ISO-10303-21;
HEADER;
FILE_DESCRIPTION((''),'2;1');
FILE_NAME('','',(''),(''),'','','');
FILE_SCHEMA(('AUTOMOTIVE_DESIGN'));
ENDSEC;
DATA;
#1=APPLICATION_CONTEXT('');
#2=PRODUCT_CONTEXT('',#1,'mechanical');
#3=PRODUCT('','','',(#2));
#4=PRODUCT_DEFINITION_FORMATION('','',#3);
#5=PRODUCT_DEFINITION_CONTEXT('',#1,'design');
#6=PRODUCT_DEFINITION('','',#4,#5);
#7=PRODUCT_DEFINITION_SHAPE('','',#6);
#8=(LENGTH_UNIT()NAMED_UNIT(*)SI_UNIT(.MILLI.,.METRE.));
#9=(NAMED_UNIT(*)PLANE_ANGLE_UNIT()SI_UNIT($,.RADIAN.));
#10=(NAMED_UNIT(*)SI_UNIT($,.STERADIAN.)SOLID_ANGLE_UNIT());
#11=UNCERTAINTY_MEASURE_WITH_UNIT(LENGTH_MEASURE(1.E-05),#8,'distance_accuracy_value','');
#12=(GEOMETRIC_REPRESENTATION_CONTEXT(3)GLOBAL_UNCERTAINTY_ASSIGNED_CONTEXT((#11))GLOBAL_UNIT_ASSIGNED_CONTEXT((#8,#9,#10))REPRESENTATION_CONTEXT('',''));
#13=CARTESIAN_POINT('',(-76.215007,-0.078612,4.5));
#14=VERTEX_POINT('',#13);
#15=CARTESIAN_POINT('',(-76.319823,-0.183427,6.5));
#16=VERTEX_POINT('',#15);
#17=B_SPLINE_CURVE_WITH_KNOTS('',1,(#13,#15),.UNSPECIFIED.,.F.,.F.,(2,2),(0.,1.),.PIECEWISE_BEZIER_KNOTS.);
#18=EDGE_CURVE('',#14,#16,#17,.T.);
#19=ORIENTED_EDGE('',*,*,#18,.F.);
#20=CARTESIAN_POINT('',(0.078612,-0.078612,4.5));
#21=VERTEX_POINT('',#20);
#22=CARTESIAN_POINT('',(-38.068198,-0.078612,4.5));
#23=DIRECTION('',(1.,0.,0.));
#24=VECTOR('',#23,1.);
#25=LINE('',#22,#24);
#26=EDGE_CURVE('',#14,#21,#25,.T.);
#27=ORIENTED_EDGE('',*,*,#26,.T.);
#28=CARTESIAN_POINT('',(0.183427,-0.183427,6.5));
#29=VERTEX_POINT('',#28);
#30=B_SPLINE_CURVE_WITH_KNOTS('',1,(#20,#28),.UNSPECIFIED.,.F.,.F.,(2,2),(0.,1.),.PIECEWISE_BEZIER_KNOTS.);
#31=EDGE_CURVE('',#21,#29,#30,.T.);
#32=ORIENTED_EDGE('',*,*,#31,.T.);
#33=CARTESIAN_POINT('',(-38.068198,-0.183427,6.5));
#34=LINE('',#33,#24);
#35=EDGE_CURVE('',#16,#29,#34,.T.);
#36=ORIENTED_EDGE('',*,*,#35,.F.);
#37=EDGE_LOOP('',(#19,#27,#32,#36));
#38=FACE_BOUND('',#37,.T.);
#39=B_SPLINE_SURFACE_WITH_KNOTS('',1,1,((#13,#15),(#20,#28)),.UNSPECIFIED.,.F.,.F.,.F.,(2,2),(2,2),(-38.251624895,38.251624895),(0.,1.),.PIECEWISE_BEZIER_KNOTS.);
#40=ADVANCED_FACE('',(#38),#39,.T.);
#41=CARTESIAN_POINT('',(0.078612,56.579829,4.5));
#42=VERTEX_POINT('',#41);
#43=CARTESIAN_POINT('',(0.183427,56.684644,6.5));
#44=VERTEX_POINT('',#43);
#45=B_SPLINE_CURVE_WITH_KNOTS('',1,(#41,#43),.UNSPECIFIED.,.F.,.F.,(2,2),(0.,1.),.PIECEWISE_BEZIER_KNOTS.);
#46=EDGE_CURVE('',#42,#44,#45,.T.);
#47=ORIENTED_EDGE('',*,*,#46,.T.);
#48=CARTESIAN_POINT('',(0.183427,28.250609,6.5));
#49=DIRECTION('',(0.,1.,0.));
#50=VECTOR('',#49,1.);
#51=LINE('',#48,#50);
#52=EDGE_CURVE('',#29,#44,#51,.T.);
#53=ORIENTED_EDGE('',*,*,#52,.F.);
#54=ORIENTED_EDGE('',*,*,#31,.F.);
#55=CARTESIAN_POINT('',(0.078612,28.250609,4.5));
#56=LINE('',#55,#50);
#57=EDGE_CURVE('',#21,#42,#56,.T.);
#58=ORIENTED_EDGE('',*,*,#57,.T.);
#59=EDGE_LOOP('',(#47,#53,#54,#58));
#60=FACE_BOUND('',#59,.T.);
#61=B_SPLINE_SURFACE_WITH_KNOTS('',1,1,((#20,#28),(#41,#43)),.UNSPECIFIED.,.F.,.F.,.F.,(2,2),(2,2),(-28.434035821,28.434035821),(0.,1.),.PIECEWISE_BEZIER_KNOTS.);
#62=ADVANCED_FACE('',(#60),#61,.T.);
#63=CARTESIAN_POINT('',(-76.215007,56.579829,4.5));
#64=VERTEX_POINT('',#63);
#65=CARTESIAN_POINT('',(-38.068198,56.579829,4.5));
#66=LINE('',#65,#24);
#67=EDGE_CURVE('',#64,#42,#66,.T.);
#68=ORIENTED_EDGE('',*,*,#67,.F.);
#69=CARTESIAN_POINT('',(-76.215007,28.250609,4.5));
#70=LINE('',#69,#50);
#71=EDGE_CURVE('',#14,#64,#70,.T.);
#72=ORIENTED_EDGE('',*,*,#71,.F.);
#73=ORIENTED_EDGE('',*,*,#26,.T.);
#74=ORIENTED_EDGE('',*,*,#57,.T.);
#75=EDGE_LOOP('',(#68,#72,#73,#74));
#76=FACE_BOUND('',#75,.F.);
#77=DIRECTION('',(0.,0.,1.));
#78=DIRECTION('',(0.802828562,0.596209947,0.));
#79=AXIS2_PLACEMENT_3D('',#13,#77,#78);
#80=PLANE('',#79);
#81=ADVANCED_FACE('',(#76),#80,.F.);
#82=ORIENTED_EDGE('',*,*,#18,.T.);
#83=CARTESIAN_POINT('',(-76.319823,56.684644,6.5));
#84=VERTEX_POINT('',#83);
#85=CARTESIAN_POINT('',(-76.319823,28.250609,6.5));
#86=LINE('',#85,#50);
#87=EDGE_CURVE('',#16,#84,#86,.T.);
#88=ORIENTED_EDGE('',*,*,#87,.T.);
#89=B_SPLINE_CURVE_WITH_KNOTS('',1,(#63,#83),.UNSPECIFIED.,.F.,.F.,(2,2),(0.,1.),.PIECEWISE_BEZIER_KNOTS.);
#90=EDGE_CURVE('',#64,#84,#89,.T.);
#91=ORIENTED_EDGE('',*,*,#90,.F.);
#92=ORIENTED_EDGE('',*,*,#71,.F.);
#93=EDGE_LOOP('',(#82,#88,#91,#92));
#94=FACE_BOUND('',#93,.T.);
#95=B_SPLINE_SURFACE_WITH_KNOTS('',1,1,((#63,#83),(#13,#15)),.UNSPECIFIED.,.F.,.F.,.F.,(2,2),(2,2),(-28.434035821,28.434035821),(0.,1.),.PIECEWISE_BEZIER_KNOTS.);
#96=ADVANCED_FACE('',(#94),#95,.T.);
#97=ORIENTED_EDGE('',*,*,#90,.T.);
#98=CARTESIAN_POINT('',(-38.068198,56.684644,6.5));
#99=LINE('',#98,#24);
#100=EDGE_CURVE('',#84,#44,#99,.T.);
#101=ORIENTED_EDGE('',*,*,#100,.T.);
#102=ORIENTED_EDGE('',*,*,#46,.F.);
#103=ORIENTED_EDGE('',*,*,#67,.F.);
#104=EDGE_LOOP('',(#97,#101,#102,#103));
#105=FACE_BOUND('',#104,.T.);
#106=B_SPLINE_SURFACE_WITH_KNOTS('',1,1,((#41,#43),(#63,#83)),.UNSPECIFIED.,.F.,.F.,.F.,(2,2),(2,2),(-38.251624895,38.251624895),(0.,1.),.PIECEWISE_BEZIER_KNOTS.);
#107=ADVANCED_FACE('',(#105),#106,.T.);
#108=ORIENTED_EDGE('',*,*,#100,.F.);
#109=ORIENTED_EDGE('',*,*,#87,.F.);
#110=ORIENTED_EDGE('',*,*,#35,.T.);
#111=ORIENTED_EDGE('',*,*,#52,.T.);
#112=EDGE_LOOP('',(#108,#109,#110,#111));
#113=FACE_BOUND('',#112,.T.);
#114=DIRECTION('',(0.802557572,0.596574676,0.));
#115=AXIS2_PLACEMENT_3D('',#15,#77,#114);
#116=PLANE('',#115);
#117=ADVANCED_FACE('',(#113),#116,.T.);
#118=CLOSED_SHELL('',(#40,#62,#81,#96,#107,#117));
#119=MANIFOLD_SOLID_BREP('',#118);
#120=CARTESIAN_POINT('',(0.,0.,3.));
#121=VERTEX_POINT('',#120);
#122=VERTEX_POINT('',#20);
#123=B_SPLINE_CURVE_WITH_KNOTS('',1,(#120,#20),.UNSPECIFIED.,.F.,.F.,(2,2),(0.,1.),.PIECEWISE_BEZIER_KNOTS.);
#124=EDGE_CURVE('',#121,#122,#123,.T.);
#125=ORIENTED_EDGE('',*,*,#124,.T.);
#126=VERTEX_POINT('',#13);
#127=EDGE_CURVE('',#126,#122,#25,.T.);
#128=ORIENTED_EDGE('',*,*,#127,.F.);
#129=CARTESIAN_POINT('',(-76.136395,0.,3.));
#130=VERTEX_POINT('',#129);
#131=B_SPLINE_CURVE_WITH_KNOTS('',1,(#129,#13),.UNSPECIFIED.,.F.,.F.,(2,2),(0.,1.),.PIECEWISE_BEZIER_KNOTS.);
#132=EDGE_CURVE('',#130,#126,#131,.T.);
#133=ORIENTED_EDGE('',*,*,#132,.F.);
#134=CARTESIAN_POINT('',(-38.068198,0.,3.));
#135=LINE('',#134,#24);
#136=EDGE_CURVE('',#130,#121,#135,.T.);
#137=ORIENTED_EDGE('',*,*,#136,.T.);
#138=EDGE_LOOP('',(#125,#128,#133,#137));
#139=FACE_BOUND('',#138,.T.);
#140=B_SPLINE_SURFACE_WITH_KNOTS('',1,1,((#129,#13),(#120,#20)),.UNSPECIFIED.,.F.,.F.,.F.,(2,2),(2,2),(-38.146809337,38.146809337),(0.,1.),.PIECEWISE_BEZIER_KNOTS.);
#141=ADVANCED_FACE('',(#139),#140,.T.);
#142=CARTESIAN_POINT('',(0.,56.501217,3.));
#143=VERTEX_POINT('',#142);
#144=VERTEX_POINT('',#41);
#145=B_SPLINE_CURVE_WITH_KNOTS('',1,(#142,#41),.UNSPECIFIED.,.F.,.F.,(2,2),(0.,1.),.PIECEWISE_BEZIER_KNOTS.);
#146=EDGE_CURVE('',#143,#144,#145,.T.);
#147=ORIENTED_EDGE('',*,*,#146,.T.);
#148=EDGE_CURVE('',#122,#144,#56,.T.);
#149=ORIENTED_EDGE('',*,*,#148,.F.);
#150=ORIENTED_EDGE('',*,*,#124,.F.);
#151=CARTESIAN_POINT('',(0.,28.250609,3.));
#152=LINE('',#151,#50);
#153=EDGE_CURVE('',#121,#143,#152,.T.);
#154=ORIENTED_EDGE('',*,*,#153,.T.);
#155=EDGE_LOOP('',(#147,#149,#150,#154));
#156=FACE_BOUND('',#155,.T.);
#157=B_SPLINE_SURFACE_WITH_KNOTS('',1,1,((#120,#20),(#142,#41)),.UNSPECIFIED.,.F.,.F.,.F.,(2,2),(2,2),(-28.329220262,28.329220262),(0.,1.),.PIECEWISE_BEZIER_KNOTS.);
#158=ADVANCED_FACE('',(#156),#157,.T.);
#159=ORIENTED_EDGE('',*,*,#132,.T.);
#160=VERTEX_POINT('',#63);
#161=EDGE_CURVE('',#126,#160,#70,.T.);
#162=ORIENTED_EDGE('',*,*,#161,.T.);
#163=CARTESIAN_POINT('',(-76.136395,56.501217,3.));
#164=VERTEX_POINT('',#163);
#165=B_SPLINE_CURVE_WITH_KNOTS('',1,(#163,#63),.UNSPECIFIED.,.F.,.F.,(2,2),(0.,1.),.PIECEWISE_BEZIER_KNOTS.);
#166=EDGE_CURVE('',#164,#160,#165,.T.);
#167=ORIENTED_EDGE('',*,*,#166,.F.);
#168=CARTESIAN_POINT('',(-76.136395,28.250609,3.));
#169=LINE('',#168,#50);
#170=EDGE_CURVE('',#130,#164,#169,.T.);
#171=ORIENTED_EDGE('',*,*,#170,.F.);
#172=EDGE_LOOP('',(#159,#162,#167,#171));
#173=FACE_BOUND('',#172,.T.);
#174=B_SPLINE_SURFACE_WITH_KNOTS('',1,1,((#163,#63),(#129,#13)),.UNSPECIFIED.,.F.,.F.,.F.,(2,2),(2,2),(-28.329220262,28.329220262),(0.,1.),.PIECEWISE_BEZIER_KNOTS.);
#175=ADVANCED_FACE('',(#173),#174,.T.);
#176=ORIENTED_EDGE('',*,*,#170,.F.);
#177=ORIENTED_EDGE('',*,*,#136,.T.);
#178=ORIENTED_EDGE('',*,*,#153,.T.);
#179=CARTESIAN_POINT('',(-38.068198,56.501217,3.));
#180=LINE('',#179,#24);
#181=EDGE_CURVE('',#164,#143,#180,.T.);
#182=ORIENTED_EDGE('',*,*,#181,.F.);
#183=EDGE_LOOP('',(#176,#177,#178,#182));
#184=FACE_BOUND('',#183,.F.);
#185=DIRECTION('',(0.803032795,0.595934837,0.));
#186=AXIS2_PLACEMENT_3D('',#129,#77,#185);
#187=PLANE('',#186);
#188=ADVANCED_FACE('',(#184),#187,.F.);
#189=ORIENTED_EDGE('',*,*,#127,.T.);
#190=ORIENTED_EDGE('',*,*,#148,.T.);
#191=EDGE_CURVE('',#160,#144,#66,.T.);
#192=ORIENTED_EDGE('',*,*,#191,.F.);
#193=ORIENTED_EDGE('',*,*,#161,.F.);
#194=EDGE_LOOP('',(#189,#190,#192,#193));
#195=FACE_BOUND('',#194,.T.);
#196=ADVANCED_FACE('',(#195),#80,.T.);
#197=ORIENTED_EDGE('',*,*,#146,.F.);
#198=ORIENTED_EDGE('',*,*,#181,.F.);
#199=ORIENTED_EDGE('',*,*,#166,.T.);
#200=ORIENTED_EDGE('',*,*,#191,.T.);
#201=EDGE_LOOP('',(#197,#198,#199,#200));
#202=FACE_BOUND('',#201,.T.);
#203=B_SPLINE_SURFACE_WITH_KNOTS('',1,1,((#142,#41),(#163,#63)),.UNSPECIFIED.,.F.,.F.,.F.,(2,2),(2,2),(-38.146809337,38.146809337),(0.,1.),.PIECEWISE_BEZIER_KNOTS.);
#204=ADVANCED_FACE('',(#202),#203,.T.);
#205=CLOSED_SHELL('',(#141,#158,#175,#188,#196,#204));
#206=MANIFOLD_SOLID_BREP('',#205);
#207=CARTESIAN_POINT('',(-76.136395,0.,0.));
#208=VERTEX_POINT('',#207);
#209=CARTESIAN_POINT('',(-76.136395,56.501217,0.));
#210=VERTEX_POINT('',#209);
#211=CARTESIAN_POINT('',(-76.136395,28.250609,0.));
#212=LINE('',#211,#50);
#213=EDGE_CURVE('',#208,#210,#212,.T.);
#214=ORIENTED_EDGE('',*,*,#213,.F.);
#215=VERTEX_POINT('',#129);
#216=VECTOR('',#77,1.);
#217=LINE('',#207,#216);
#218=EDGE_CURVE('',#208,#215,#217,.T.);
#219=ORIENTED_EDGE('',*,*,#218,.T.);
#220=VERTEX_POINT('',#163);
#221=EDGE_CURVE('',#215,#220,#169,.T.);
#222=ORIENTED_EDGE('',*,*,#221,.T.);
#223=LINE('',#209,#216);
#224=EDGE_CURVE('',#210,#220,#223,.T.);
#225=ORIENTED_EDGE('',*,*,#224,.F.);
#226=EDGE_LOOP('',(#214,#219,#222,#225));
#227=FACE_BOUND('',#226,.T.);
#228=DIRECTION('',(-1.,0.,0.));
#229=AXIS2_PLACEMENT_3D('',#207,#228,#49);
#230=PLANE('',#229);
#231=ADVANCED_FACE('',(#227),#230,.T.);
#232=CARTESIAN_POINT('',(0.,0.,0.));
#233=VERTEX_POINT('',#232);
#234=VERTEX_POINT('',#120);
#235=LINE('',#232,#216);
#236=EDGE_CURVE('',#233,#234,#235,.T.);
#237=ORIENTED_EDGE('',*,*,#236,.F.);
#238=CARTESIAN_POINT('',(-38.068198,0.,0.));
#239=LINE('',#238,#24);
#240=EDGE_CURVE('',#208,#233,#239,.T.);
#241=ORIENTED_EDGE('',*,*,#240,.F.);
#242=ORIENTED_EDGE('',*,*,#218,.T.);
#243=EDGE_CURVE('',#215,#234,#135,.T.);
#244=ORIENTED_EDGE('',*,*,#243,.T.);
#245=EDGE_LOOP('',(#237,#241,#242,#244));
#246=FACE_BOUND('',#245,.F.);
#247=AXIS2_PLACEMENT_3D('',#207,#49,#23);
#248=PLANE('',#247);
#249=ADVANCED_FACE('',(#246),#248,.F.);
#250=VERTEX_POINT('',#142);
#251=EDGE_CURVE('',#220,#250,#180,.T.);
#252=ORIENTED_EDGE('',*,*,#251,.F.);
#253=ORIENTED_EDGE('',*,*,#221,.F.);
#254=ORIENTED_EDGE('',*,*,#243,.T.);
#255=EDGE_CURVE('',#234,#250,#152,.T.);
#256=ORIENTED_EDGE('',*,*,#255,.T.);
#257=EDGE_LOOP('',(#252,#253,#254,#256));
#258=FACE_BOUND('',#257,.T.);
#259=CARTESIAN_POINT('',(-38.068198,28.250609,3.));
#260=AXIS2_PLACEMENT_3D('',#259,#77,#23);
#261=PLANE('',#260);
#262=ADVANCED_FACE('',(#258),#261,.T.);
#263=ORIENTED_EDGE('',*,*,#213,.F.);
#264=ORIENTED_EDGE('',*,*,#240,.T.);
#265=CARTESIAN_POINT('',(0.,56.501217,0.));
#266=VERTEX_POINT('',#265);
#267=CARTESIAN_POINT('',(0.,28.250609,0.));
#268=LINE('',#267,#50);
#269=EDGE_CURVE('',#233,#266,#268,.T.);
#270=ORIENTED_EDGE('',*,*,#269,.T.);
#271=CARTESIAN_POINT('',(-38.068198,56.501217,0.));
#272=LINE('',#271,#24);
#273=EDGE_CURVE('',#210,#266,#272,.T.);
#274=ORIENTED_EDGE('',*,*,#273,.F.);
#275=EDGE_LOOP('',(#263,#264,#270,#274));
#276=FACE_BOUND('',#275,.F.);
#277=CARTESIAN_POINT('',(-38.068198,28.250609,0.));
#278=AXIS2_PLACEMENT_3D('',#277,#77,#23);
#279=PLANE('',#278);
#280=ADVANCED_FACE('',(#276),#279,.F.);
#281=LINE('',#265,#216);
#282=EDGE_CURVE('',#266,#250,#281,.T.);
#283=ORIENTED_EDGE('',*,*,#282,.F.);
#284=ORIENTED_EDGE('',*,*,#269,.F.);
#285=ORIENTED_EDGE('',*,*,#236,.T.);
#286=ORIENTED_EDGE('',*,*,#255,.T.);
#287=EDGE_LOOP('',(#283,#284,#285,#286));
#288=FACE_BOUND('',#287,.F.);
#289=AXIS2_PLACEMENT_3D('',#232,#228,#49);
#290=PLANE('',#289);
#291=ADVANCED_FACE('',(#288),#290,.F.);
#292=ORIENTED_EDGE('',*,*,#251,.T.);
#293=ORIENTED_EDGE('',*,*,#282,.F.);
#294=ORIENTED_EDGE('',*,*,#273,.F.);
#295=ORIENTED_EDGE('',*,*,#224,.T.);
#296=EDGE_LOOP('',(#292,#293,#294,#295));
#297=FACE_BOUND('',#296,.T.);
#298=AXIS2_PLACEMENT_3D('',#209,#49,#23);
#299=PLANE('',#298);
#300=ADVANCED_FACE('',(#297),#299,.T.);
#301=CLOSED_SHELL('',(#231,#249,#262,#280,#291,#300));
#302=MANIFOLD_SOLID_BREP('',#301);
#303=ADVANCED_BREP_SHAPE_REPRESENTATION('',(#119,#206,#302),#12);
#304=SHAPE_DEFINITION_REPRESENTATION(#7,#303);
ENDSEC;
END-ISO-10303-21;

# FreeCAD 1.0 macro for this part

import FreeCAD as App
import Part
import Sketcher
Q = App.Units.Quantity

doc = App.newDocument("Part")
body = doc.addObject("PartDesign::Body", "Body")

# Sketch on XY plane
sketch1 = body.newObject("Sketcher::SketchObject", "Sketch")
sketch1.AttachmentSupport = (doc.getObject("XY_Plane"), [""])
sketch1.MapMode = "FlatFace"
sketch1.addGeometry(Part.LineSegment(App.Vector(-76, 57, 0), App.Vector(-76, 0, 0)), False)
sketch1.addGeometry(Part.LineSegment(App.Vector(-76, 0, 0), App.Vector(0, 0, 0)), False)
sketch1.addGeometry(Part.LineSegment(App.Vector(0, 0, 0), App.Vector(0, 57, 0)), False)
sketch1.addGeometry(Part.LineSegment(App.Vector(0, 57, 0), App.Vector(-76, 57, 0)), False)
sketch1.addConstraint(Sketcher.Constraint("Coincident", 0, 2, 1, 1))
sketch1.addConstraint(Sketcher.Constraint("Coincident", 1, 2, 2, 1))
sketch1.addConstraint(Sketcher.Constraint("Coincident", 2, 2, 3, 1))
sketch1.addConstraint(Sketcher.Constraint("Coincident", 3, 2, 0, 1))
sketch1.addConstraint(Sketcher.Constraint("Vertical", 0))
sketch1.addConstraint(Sketcher.Constraint("Horizontal", 1))
sketch1.addConstraint(Sketcher.Constraint("Vertical", 2))
sketch1.addConstraint(Sketcher.Constraint("Horizontal", 3))
sketch1.addConstraint(Sketcher.Constraint("Coincident", 1, 2, -1, 1))
sketch1.addConstraint(Sketcher.Constraint("DistanceX", 1, 1, 1, 2, Q("76.136395 mm")))
sketch1.addConstraint(Sketcher.Constraint("DistanceY", 0, 2, 0, 1, Q("56.501217 mm")))
pad1 = body.newObject("PartDesign::Pad", "Pad")
pad1.Profile = sketch1
pad1.Length = 3
body2 = doc.addObject("PartDesign::Body", "Body001")

# Sketch on XY plane
sketch2 = body2.newObject("Sketcher::SketchObject", "Sketch001")
sketch2.AttachmentSupport = (doc.getObject("XY_Plane001"), [""])
sketch2.MapMode = "FlatFace"
sketch2.AttachmentOffset = App.Placement(App.Vector(0, 0, 3), App.Rotation())
sketch2.addGeometry(Part.LineSegment(App.Vector(-76, 57, 0), App.Vector(-76, 0, 0)), False)
sketch2.addGeometry(Part.LineSegment(App.Vector(-76, 0, 0), App.Vector(0, 0, 0)), False)
sketch2.addGeometry(Part.LineSegment(App.Vector(0, 0, 0), App.Vector(0, 57, 0)), False)
sketch2.addGeometry(Part.LineSegment(App.Vector(0, 57, 0), App.Vector(-76, 57, 0)), False)
sketch2.addConstraint(Sketcher.Constraint("Coincident", 0, 2, 1, 1))
sketch2.addConstraint(Sketcher.Constraint("Coincident", 1, 2, 2, 1))
sketch2.addConstraint(Sketcher.Constraint("Coincident", 2, 2, 3, 1))
sketch2.addConstraint(Sketcher.Constraint("Coincident", 3, 2, 0, 1))
sketch2.addConstraint(Sketcher.Constraint("Vertical", 0))
sketch2.addConstraint(Sketcher.Constraint("Horizontal", 1))
sketch2.addConstraint(Sketcher.Constraint("Vertical", 2))
sketch2.addConstraint(Sketcher.Constraint("Horizontal", 3))
sketch2.addConstraint(Sketcher.Constraint("Coincident", 1, 2, -1, 1))
sketch2.addConstraint(Sketcher.Constraint("DistanceX", 1, 1, 1, 2, Q("76.136395 mm")))
sketch2.addConstraint(Sketcher.Constraint("DistanceY", 0, 2, 0, 1, Q("56.501217 mm")))
pad2 = body2.newObject("PartDesign::Pad", "Pad001")
pad2.Profile = sketch2
pad2.Length = 1.5
pad2.TaperAngle = 3
body3 = doc.addObject("PartDesign::Body", "Body002")

# Sketch on XY plane
sketch3 = body3.newObject("Sketcher::SketchObject", "Sketch002")
sketch3.AttachmentSupport = (doc.getObject("XY_Plane002"), [""])
sketch3.MapMode = "FlatFace"
sketch3.AttachmentOffset = App.Placement(App.Vector(0, 0, 4.5), App.Rotation())
sketch3.addGeometry(Part.LineSegment(App.Vector(-76, 57, 0), App.Vector(-76, 0, 0)), False)
sketch3.addGeometry(Part.LineSegment(App.Vector(-76, 0, 0), App.Vector(0, 0, 0)), False)
sketch3.addGeometry(Part.LineSegment(App.Vector(0, 0, 0), App.Vector(0, 57, 0)), False)
sketch3.addGeometry(Part.LineSegment(App.Vector(0, 57, 0), App.Vector(-76, 57, 0)), False)
sketch3.addConstraint(Sketcher.Constraint("Coincident", 0, 2, 1, 1))
sketch3.addConstraint(Sketcher.Constraint("Coincident", 1, 2, 2, 1))
sketch3.addConstraint(Sketcher.Constraint("Coincident", 2, 2, 3, 1))
sketch3.addConstraint(Sketcher.Constraint("Coincident", 3, 2, 0, 1))
sketch3.addConstraint(Sketcher.Constraint("Vertical", 0))
sketch3.addConstraint(Sketcher.Constraint("Horizontal", 1))
sketch3.addConstraint(Sketcher.Constraint("Vertical", 2))
sketch3.addConstraint(Sketcher.Constraint("Horizontal", 3))
sketch3.addConstraint(Sketcher.Constraint("DistanceX", 1, 1, 1, 2, Q("76.293619 mm")))
sketch3.addConstraint(Sketcher.Constraint("DistanceY", 0, 2, 0, 1, Q("56.658441 mm")))
sketch3.addConstraint(Sketcher.Constraint("DistanceY", 0, 2, -1, 1, Q("0.078612 mm")))
sketch3.addConstraint(Sketcher.Constraint("DistanceX", -1, 1, 1, 2, Q("0.078612 mm")))
pad3 = body3.newObject("PartDesign::Pad", "Pad002")
pad3.Profile = sketch3
pad3.Length = 2
pad3.TaperAngle = 3

doc.recompute()
